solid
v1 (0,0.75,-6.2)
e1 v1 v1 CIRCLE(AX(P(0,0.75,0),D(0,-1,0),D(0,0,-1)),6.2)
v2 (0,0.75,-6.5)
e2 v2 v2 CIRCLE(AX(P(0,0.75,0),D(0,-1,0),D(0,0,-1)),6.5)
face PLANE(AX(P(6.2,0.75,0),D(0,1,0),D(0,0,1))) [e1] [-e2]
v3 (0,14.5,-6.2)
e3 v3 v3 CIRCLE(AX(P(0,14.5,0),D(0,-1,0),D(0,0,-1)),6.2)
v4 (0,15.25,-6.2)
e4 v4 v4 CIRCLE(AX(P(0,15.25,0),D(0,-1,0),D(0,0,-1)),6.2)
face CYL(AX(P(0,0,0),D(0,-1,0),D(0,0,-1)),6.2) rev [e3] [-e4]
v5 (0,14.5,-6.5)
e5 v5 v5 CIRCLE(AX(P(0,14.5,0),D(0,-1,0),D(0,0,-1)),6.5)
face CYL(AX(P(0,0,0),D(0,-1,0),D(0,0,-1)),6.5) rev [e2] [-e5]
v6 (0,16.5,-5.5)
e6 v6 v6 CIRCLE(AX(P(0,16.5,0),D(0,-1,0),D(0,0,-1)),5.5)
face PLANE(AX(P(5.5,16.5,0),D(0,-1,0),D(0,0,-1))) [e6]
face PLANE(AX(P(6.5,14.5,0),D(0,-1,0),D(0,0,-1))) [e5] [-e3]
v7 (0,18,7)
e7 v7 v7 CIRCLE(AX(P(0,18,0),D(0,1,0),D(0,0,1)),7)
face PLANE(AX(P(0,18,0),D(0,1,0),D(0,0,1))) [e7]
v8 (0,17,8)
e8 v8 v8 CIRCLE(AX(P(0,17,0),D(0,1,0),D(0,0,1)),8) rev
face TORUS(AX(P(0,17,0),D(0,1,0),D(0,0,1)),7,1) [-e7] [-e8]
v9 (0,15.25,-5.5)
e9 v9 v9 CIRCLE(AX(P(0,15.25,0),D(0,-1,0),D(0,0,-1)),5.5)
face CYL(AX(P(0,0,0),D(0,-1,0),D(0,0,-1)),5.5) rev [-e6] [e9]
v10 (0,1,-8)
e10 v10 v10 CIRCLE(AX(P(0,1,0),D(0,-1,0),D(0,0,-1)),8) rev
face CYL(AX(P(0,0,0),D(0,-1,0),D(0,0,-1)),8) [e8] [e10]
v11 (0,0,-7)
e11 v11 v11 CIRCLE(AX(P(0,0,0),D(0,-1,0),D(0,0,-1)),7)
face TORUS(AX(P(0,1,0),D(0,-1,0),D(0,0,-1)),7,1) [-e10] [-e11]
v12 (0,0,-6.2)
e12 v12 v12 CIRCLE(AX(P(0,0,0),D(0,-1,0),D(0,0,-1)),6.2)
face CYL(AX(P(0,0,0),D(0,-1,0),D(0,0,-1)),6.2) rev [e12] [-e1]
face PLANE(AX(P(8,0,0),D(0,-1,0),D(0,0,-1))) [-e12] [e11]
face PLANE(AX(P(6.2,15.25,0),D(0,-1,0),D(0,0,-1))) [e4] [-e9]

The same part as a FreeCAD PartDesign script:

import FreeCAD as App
import Part
import Sketcher

V = App.Vector
Q = App.Units.Quantity


def edges_at(feature, points):
    """Names of the edges that pass closest to the given points."""
    edges = feature.Shape.Edges
    near = lambda p: min(range(len(edges)), key=lambda i: edges[i].distToShape(Part.Vertex(*p))[0])
    return sorted({f"Edge{near(p) + 1}" for p in points})


def add_polygon(sketch, points):
    """Adds a closed chain of lines whose ends are joined by coincident constraints."""
    first, n = sketch.GeometryCount, len(points)
    for a, b in zip(points, points[1:] + points[:1]):
        sketch.addGeometry(Part.LineSegment(App.Vector(*a, 0), App.Vector(*b, 0)), False)
    for i in range(n):
        sketch.addConstraint(Sketcher.Constraint("Coincident", first + i, 2, first + (i + 1) % n, 1))

doc = App.newDocument("Part")
params = doc.addObject("Spreadsheet::Sheet", "Params")
for row, (alias, value) in enumerate([
    ("sketch1_width", "8 mm"),
    ("sketch1_height", "18 mm"),
    ("sketch1_width2", "5.5 mm"),
    ("sketch1_width3", "0.7 mm"),
    ("sketch1_width4", "0.3 mm"),
    ("revolution_angle", "360 deg"),
    ("fillet_radius", "1 mm"),
], start=1):
    params.set(f"A{row}", alias)
    params.set(f"B{row}", "=" + value)
    params.setAlias(f"B{row}", alias)

body = doc.addObject("PartDesign::Body", "Body")

sketch1 = body.newObject("Sketcher::SketchObject", "Sketch")
sketch1.AttachmentSupport = (doc.getObject("XY_Plane"), [""])
sketch1.MapMode = "FlatFace"
add_polygon(sketch1, [(8, 18), (0, 18), (0, 16.5), (5.5, 16.5), (5.5, 15.25), (6.2, 15.25), (6.2, 14.5), (6.5, 14.5), (6.5, 0.75), (6.2, 0.75), (6.2, 0), (8, 0)])
sketch1.addConstraint([
    Sketcher.Constraint("Horizontal", 0),
    Sketcher.Constraint("Vertical", 1),
    Sketcher.Constraint("Horizontal", 2),
    Sketcher.Constraint("Vertical", 3),
    Sketcher.Constraint("Horizontal", 4),
    Sketcher.Constraint("Vertical", 5),
    Sketcher.Constraint("Horizontal", 6),
    Sketcher.Constraint("Vertical", 7),
    Sketcher.Constraint("Horizontal", 8),
    Sketcher.Constraint("Vertical", 9),
    Sketcher.Constraint("Horizontal", 10),
    Sketcher.Constraint("Vertical", 11),
    Sketcher.Constraint("PointOnObject", 0, 2, -2),
    Sketcher.Constraint("PointOnObject", 9, 2, -1),
    Sketcher.Constraint("Vertical", 5, 2, 8, 2),
    Sketcher.Constraint("Equal", 5, 9),
    Sketcher.Constraint("DistanceX", 0, 2, 0, 1, Q("8 mm")),
    Sketcher.Constraint("DistanceY", 11, 1, 11, 2, Q("18 mm")),
    Sketcher.Constraint("DistanceX", 2, 1, 2, 2, Q("5.5 mm")),
    Sketcher.Constraint("DistanceX", 4, 1, 4, 2, Q("0.7 mm")),
    Sketcher.Constraint("DistanceX", 6, 1, 6, 2, Q("0.3 mm")),
    Sketcher.Constraint("DistanceY", 1, 2, 1, 1, Q("1.5 mm")),
    Sketcher.Constraint("DistanceY", 5, 2, 2, 2, Q("2 mm")),
    Sketcher.Constraint("DistanceY", 3, 2, 3, 1, Q("1.25 mm")),
])
sketch1.setExpression("Constraints[28]", "Params.sketch1_width")
sketch1.setExpression("Constraints[29]", "Params.sketch1_height")
sketch1.setExpression("Constraints[30]", "Params.sketch1_width2")
sketch1.setExpression("Constraints[31]", "Params.sketch1_width3")
sketch1.setExpression("Constraints[32]", "Params.sketch1_width4")
revolution = body.newObject("PartDesign::Revolution", "Revolution")
revolution.Profile = sketch1
revolution.ReferenceAxis = (sketch1, ["V_Axis"])
revolution.setExpression("Angle", "Params.revolution_angle")
doc.recompute()

fillet = body.newObject("PartDesign::Fillet", "Fillet")
fillet.Base = (revolution, edges_at(revolution, [(0, 0, 8), (0, 18, 8)]))
fillet.setExpression("Radius", "Params.fillet_radius")

doc.recompute()
